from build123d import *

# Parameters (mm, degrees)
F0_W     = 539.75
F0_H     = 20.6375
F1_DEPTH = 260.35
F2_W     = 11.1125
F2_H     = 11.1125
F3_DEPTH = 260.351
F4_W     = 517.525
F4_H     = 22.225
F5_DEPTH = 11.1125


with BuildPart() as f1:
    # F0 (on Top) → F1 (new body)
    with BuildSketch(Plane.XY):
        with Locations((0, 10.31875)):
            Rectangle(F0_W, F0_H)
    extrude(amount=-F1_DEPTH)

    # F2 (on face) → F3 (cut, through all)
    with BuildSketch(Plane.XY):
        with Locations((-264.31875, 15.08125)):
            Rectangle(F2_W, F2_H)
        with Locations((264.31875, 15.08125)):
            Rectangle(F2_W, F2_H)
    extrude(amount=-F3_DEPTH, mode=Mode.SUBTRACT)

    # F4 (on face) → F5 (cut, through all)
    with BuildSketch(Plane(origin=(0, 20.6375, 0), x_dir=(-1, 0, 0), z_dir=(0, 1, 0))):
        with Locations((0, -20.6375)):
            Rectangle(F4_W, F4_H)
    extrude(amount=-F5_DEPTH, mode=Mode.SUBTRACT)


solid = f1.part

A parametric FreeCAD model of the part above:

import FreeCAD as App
import Part
import Sketcher

V = App.Vector
Q = App.Units.Quantity


def add_polygon(sketch, points):
    """Adds a closed chain of lines whose ends are joined by coincident constraints."""
    first, n = sketch.GeometryCount, len(points)
    for a, b in zip(points, points[1:] + points[:1]):
        sketch.addGeometry(Part.LineSegment(App.Vector(*a, 0), App.Vector(*b, 0)), False)
    for i in range(n):
        sketch.addConstraint(Sketcher.Constraint("Coincident", first + i, 2, first + (i + 1) % n, 1))

doc = App.newDocument("Part")
body = doc.addObject("PartDesign::Body", "Body")

sketch1 = body.newObject("Sketcher::SketchObject", "Sketch")
sketch1.AttachmentSupport = (doc.getObject("XY_Plane"), [""])
sketch1.MapMode = "FlatFace"
add_polygon(sketch1, [(-270, 21), (-270, 0), (270, 0), (270, 21)])
sketch1.addConstraint(Sketcher.Constraint("Vertical", 0))
sketch1.addConstraint(Sketcher.Constraint("Horizontal", 1))
sketch1.addConstraint(Sketcher.Constraint("Vertical", 2))
sketch1.addConstraint(Sketcher.Constraint("Horizontal", 3))
sketch1.addConstraint(Sketcher.Constraint("Symmetric", 0, 2, 1, 2, -1, 1))
sketch1.addConstraint(Sketcher.Constraint("DistanceX", 1, 1, 1, 2, Q("21.25 in")))
sketch1.addConstraint(Sketcher.Constraint("DistanceY", 0, 2, 0, 1, Q("0.8125 in")))
pad1 = body.newObject("PartDesign::Pad", "Pad")
pad1.Profile = sketch1
pad1.Length = Q("10.25 in")
pad1.Reversed = True

sketch2 = body.newObject("Sketcher::SketchObject", "Sketch001")
sketch2.AttachmentSupport = (doc.getObject("XY_Plane"), [""])
sketch2.MapMode = "FlatFace"
add_polygon(sketch2, [(-270, 21), (-270, 10), (-259, 10), (-259, 21)])
add_polygon(sketch2, [(259, 21), (259, 10), (270, 10), (270, 21)])
sketch2.addConstraint(Sketcher.Constraint("Vertical", 0))
sketch2.addConstraint(Sketcher.Constraint("Horizontal", 1))
sketch2.addConstraint(Sketcher.Constraint("Vertical", 2))
sketch2.addConstraint(Sketcher.Constraint("Horizontal", 3))
sketch2.addConstraint(Sketcher.Constraint("Vertical", 4))
sketch2.addConstraint(Sketcher.Constraint("Horizontal", 5))
sketch2.addConstraint(Sketcher.Constraint("Vertical", 6))
sketch2.addConstraint(Sketcher.Constraint("Horizontal", 7))
sketch2.addConstraint(Sketcher.Constraint("Symmetric", 1, 2, 4, 2, -2))
sketch2.addConstraint(Sketcher.Constraint("Symmetric", 3, 2, 6, 2, -2))
sketch2.addConstraint(Sketcher.Constraint("Equal", 7, 0))
sketch2.addConstraint(Sketcher.Constraint("DistanceX", 1, 1, 1, 2, Q("0.4375 in")))
sketch2.addConstraint(Sketcher.Constraint("DistanceX", 0, 2, 5, 2, Q("21.25 in")))
sketch2.addConstraint(Sketcher.Constraint("DistanceY", -1, 1, 0, 2, Q("0.375 in")))
pocket1 = body.newObject("PartDesign::Pocket", "Pocket")
pocket1.Profile = sketch2
pocket1.Type = "ThroughAll"

sketch3 = body.newObject("Sketcher::SketchObject", "Sketch002")
sketch3.AttachmentSupport = (doc.getObject("XZ_Plane"), [""])
sketch3.MapMode = "FlatFace"
sketch3.AttachmentOffset = App.Placement(V(0, 0, -0.8125 * 25.4), App.Rotation())
add_polygon(sketch3, [(259, -10), (259, -32), (-259, -32), (-259, -10)])
sketch3.addConstraint(Sketcher.Constraint("Vertical", 0))
sketch3.addConstraint(Sketcher.Constraint("Horizontal", 1))
sketch3.addConstraint(Sketcher.Constraint("Vertical", 2))
sketch3.addConstraint(Sketcher.Constraint("Horizontal", 3))
sketch3.addConstraint(Sketcher.Constraint("DistanceX", 1, 2, 1, 1, Q("20.375 in")))
sketch3.addConstraint(Sketcher.Constraint("DistanceY", 0, 2, 0, 1, Q("0.875 in")))
sketch3.addConstraint(Sketcher.Constraint("DistanceY", 0, 2, -1, 1, Q("1.25 in")))
sketch3.addConstraint(Sketcher.Constraint("DistanceX", -1, 1, 0, 2, Q("10.1875 in")))
pocket2 = body.newObject("PartDesign::Pocket", "Pocket001")
pocket2.Profile = sketch3
pocket2.Length = Q("0.4375 in")
pocket2.Reversed = True

doc.recompute()
